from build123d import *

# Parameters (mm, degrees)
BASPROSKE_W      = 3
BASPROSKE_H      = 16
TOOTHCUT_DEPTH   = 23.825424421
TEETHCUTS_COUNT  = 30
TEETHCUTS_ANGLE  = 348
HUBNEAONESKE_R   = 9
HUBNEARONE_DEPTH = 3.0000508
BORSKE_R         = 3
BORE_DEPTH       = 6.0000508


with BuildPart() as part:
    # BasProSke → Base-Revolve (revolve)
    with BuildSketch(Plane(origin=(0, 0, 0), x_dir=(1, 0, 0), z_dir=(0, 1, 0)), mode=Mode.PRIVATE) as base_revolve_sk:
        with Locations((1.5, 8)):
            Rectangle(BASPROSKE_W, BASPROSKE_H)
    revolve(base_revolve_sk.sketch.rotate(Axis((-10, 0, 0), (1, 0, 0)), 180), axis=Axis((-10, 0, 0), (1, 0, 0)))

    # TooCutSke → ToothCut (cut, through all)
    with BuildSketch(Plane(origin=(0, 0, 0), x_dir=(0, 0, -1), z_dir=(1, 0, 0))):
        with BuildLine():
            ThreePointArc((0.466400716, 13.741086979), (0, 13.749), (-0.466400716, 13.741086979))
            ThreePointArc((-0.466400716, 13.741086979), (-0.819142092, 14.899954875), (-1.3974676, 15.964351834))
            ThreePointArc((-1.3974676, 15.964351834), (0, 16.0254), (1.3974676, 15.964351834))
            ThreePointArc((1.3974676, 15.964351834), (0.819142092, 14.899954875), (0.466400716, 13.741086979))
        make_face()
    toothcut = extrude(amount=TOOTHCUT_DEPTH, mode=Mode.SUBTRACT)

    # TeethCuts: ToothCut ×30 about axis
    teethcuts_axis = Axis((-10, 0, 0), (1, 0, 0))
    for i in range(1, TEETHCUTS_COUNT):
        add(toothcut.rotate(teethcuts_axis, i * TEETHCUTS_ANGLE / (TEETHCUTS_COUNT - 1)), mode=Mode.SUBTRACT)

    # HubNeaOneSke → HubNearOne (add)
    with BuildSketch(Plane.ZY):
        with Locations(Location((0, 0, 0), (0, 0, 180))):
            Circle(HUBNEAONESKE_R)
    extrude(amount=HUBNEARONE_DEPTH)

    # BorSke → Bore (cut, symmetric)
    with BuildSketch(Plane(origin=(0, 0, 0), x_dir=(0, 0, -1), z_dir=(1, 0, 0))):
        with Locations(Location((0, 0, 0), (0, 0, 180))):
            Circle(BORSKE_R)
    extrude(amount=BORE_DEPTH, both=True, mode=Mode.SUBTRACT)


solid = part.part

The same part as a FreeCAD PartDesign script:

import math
import FreeCAD as App
import Part
import Sketcher
from FreeCAD import Vector


def add_polygon(sketch, points):
    """Adds a closed chain of lines whose ends are joined by coincident constraints."""
    first, n = sketch.GeometryCount, len(points)
    for a, b in zip(points, points[1:] + points[:1]):
        sketch.addGeometry(Part.LineSegment(App.Vector(*a, 0), App.Vector(*b, 0)), False)
    for i in range(n):
        sketch.addConstraint(Sketcher.Constraint("Coincident", first + i, 2, first + (i + 1) % n, 1))

doc = App.newDocument("Part")
body = doc.addObject("PartDesign::Body", "Body")

# Sketch on XZ plane
sketch1 = body.newObject("Sketcher::SketchObject", "Sketch")
sketch1.AttachmentSupport = (doc.getObject("XZ_Plane"), [""])
sketch1.MapMode = "FlatFace"
add_polygon(sketch1, [(0, -16), (0, 0), (3, 0), (3, -16)])  # lines 0-3
sketch1.addConstraint(Sketcher.Constraint("Vertical", 0))
sketch1.addConstraint(Sketcher.Constraint("Horizontal", 1))
sketch1.addConstraint(Sketcher.Constraint("Vertical", 2))
sketch1.addConstraint(Sketcher.Constraint("Horizontal", 3))
sketch1.addConstraint(Sketcher.Constraint("Coincident", 0, 2, -1, 1))
sketch1.addConstraint(Sketcher.Constraint("DistanceX", 1, 1, 1, 2, 3.0))
sketch1.addConstraint(Sketcher.Constraint("DistanceY", 0, 1, 0, 2, 16.0))
revolution = body.newObject("PartDesign::Revolution", "Revolution")
revolution.Profile = sketch1
revolution.ReferenceAxis = (sketch1, ["H_Axis"])
revolution.Angle = 360

# Sketch on YZ plane
sketch2 = body.newObject("Sketcher::SketchObject", "Sketch001")
sketch2.AttachmentSupport = (doc.getObject("YZ_Plane"), [""])
sketch2.MapMode = "FlatFace"
sketch2.addGeometry(Part.ArcOfCircle(Part.Circle(Vector(0, 0, 0), Vector(0, 0, 1), 13.7), math.radians(-1.94), math.radians(1.94)), False)
sketch2.addGeometry(Part.ArcOfCircle(Part.Circle(Vector(12.6, -6.4, 0), Vector(0, 0, 1), 6), math.radians(56), math.radians(79)), False)
sketch2.addGeometry(Part.ArcOfCircle(Part.Circle(Vector(0, 0, 0), Vector(0, 0, 1), 16), math.radians(-5), math.radians(5)), False)
sketch2.addGeometry(Part.ArcOfCircle(Part.Circle(Vector(12.6, 6.4, 0), Vector(0, 0, 1), 6), math.radians(-79), math.radians(-56)), False)
sketch2.addConstraint(Sketcher.Constraint("Coincident", 0, 1, 1, 2))
sketch2.addConstraint(Sketcher.Constraint("Coincident", 1, 1, 2, 1))
sketch2.addConstraint(Sketcher.Constraint("Coincident", 2, 2, 3, 2))
sketch2.addConstraint(Sketcher.Constraint("Coincident", 3, 1, 0, 2))
sketch2.addConstraint(Sketcher.Constraint("Coincident", 0, 3, -1, 1))
sketch2.addConstraint(Sketcher.Constraint("Coincident", 2, 3, -1, 1))
sketch2.addConstraint(Sketcher.Constraint("Equal", 1, 3))
sketch2.addConstraint(Sketcher.Constraint("Symmetric", 1, 3, 3, 3, -1))
sketch2.addConstraint(Sketcher.Constraint("Radius", 1, 6.0))
sketch2.addConstraint(Sketcher.Constraint("Radius", 0, 13.749))
sketch2.addConstraint(Sketcher.Constraint("Radius", 2, 16.0254))
sketch2.addConstraint(Sketcher.Constraint("DistanceY", 0, 1, -1, 1, 0.466401))
sketch2.addConstraint(Sketcher.Constraint("DistanceX", -1, 1, 1, 1, 15.964352))
pocket1 = body.newObject("PartDesign::Pocket", "Pocket")
pocket1.Profile = sketch2
pocket1.Type = "ThroughAll"
pocket1.Reversed = True
doc.recompute()

polarpattern = body.newObject("PartDesign::PolarPattern", "PolarPattern")
polarpattern.Originals = [pocket1]
polarpattern.Axis = (doc.getObject("X_Axis"), [""])
polarpattern.Angle = 360
polarpattern.Occurrences = 30
body.Tip = polarpattern

# Sketch on YZ plane
sketch3 = body.newObject("Sketcher::SketchObject", "Sketch002")
sketch3.AttachmentSupport = (doc.getObject("YZ_Plane"), [""])
sketch3.MapMode = "FlatFace"
sketch3.addGeometry(Part.Circle(Vector(0, 0, 0), Vector(0, 0, 1), 9), False)
sketch3.addConstraint(Sketcher.Constraint("Coincident", 0, 3, -1, 1))
sketch3.addConstraint(Sketcher.Constraint("Diameter", 0, 18.0))
pad1 = body.newObject("PartDesign::Pad", "Pad")
pad1.Profile = sketch3
pad1.Length = 3.000051
pad1.Reversed = True

# Sketch on YZ plane
sketch4 = body.newObject("Sketcher::SketchObject", "Sketch003")
sketch4.AttachmentSupport = (doc.getObject("YZ_Plane"), [""])
sketch4.MapMode = "FlatFace"
sketch4.addGeometry(Part.Circle(Vector(0, 0, 0), Vector(0, 0, 1), 3), False)
sketch4.addConstraint(Sketcher.Constraint("Coincident", 0, 3, -1, 1))
sketch4.addConstraint(Sketcher.Constraint("Diameter", 0, 6.0))
pocket2 = body.newObject("PartDesign::Pocket", "Pocket001")
pocket2.Profile = sketch4
pocket2.Length = 12.000102
pocket2.Midplane = True

doc.recompute()
